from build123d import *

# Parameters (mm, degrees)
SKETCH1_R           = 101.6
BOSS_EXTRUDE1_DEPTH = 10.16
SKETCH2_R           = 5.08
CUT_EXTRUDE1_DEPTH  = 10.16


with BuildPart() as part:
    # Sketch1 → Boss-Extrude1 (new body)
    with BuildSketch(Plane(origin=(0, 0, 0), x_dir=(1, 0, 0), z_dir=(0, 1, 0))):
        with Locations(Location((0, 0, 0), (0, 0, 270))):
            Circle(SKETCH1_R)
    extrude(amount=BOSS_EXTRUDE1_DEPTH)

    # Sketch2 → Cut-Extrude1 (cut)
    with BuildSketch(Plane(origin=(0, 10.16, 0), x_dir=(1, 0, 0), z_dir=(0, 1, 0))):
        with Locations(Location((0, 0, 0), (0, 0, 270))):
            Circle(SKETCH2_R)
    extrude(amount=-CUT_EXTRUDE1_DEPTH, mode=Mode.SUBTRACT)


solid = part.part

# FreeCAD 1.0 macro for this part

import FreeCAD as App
import Part
import Sketcher
from FreeCAD import Vector
Q = App.Units.Quantity

doc = App.newDocument("Part")
params = doc.addObject("Spreadsheet::Sheet", "Params")
for row, (alias, value) in enumerate([
    ("sketch1_diameter", "8 in"),
    ("pad1_length", "0.4 in"),
    ("sketch2_diameter", "0.4 in"),
    ("pocket1_length", "0.4 in"),
], start=1):
    params.set(f"A{row}", alias)
    params.set(f"B{row}", "=" + value)
    params.setAlias(f"B{row}", alias)

body = doc.addObject("PartDesign::Body", "Body")

sketch1 = doc.addObject("Sketcher::SketchObject", "Sketch")
body.addObject(sketch1)
sketch1.AttachmentSupport = (doc.XZ_Plane, [""])
sketch1.MapMode = "FlatFace"
sketch1.addGeometry(Part.Circle(Vector(0, 0, 0), Vector(0, 0, 1), 101.6), False)
sketch1.addConstraint([
    Sketcher.Constraint("Coincident", 0, 3, -1, 1),
    Sketcher.Constraint("Diameter", 0, Q("8 in")),
])
sketch1.setExpression("Constraints[1]", "Params.sketch1_diameter")
pad1 = doc.addObject("PartDesign::Pad", "Pad")
body.addObject(pad1)
pad1.Profile = sketch1
pad1.setExpression("Length", "Params.pad1_length")
pad1.Reversed = True

sketch2 = doc.addObject("Sketcher::SketchObject", "Sketch001")
body.addObject(sketch2)
sketch2.AttachmentSupport = (doc.XZ_Plane, [""])
sketch2.MapMode = "FlatFace"
sketch2.AttachmentOffset = App.Placement(Vector(0, 0, -0.4 * 25.4), App.Rotation())
sketch2.addGeometry(Part.Circle(Vector(0, 0, 0), Vector(0, 0, 1), 5.08), False)
sketch2.addConstraint([
    Sketcher.Constraint("Coincident", 0, 3, -1, 1),
    Sketcher.Constraint("Diameter", 0, Q("0.4 in")),
])
sketch2.setExpression("Constraints[1]", "Params.sketch2_diameter")
pocket1 = doc.addObject("PartDesign::Pocket", "Pocket")
body.addObject(pocket1)
pocket1.Profile = sketch2
pocket1.setExpression("Length", "Params.pocket1_length")
pocket1.Reversed = True

doc.recompute()
